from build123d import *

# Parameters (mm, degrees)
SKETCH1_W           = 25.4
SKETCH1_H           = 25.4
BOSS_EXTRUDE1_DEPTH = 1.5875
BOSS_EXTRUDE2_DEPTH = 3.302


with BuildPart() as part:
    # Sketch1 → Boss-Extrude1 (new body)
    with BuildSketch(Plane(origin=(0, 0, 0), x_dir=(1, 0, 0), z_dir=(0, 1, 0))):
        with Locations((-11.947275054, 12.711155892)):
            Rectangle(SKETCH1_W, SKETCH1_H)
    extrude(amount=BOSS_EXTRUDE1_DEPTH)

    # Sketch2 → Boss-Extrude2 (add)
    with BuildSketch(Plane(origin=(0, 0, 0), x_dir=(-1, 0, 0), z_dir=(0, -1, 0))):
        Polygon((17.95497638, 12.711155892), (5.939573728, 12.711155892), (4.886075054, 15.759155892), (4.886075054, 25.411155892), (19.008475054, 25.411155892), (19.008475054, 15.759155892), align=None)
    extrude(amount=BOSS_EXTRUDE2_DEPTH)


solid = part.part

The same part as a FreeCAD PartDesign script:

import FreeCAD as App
import Part
import Sketcher
from FreeCAD import Vector
Q = App.Units.Quantity


def add_polygon(sketch, points):
    """Adds a closed chain of lines whose ends are joined by coincident constraints."""
    first, n = sketch.GeometryCount, len(points)
    for a, b in zip(points, points[1:] + points[:1]):
        sketch.addGeometry(Part.LineSegment(App.Vector(*a, 0), App.Vector(*b, 0)), False)
    for i in range(n):
        sketch.addConstraint(Sketcher.Constraint("Coincident", first + i, 2, first + (i + 1) % n, 1))

doc = App.newDocument("Part")
body = doc.addObject("PartDesign::Body", "Body")

# Sketch on XZ plane
sketch1 = body.newObject("Sketcher::SketchObject", "Sketch")
sketch1.AttachmentSupport = (doc.getObject("XZ_Plane"), [""])
sketch1.MapMode = "FlatFace"
add_polygon(sketch1, [(-25, -25), (-25, 0), (1, 0), (1, -25)])  # lines 0-3
sketch1.addConstraint([
    Sketcher.Constraint("Vertical", 0),
    Sketcher.Constraint("Horizontal", 1),
    Sketcher.Constraint("Vertical", 2),
    Sketcher.Constraint("Horizontal", 3),
    Sketcher.Constraint("Equal", 3, 0),
    Sketcher.Constraint("DistanceX", 1, 1, 1, 2, Q("1 in")),
    Sketcher.Constraint("DistanceX", 0, 2, -1, 1, Q("24.647275 mm")),
    Sketcher.Constraint("DistanceY", 0, 2, -1, 1, Q("0.011156 mm")),
])
pad1 = body.newObject("PartDesign::Pad", "Pad")
pad1.Profile = sketch1
pad1.Length = Q("0.0625 in")
pad1.Reversed = True

# Sketch on XZ plane
sketch2 = body.newObject("Sketcher::SketchObject", "Sketch001")
sketch2.AttachmentSupport = (doc.getObject("XZ_Plane"), [""])
sketch2.MapMode = "FlatFace"
add_polygon(sketch2, [(-5.9, -12.7), (-18, -12.7), (-19, -15.8), (-19, -25.4), (-4.9, -25.4), (-4.9, -15.8)])  # lines 0-5
sketch2.addConstraint([
    Sketcher.Constraint("Horizontal", 0),
    Sketcher.Constraint("Vertical", 2),
    Sketcher.Constraint("Horizontal", 3),
    Sketcher.Constraint("Vertical", 4),
    Sketcher.Constraint("Horizontal", 1, 2, 4, 2),
    Sketcher.Constraint("Equal", 1, 5),
    Sketcher.Constraint("DistanceY", 2, 2, 2, 1, Q("0.38 in")),
    Sketcher.Constraint("DistanceY", 2, 2, 0, 2, Q("0.5 in")),
    Sketcher.Constraint("DistanceX", 3, 1, 3, 2, Q("0.556 in")),
    Sketcher.Constraint("DistanceX", 1, 2, 0, 2, Q("1.053499 mm")),
    Sketcher.Constraint("DistanceX", 0, 2, -1, 1, Q("17.954976 mm")),
    Sketcher.Constraint("DistanceY", 0, 2, -1, 1, Q("12.711156 mm")),
])
pad2 = body.newObject("PartDesign::Pad", "Pad001")
pad2.Profile = sketch2
pad2.Length = Q("0.13 in")

doc.recompute()
